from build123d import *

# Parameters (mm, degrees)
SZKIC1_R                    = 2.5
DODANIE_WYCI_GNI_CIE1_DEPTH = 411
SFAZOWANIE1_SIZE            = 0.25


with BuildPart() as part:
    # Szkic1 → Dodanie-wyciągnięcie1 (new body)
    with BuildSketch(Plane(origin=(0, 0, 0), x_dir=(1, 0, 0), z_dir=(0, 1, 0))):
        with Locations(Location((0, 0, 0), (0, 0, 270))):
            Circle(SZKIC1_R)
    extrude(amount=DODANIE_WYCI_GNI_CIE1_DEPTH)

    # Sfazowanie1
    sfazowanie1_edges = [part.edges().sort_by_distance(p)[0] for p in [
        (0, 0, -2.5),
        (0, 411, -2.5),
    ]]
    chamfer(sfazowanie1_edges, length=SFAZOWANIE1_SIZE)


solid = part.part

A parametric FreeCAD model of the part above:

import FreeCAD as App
import Part
import Sketcher
Q = App.Units.Quantity


def edges_at(feature, points):
    """Names of the edges that pass closest to the given points."""
    edges = feature.Shape.Edges
    near = lambda p: min(range(len(edges)), key=lambda i: edges[i].distToShape(Part.Vertex(*p))[0])
    return sorted({f"Edge{near(p) + 1}" for p in points})

doc = App.newDocument("Part")
body = doc.addObject("PartDesign::Body", "Body")

# Sketch on XZ plane
sketch1 = doc.addObject("Sketcher::SketchObject", "Sketch")
body.addObject(sketch1)
sketch1.AttachmentSupport = (doc.XZ_Plane, [""])
sketch1.MapMode = "FlatFace"
sketch1.addGeometry(Part.Circle(App.Vector(0, 0, 0), App.Vector(0, 0, 1), 2.5), False)
sketch1.addConstraint([
    Sketcher.Constraint("Coincident", 0, 3, -1, 1),
    Sketcher.Constraint("Diameter", 0, Q("5 mm")),
])
pad1 = doc.addObject("PartDesign::Pad", "Pad")
body.addObject(pad1)
pad1.Profile = sketch1
pad1.Length = 411
pad1.Reversed = True
doc.recompute()

chamfer = doc.addObject("PartDesign::Chamfer", "Chamfer")
body.addObject(chamfer)
chamfer.Base = (pad1, edges_at(pad1, [(0, 0, -2.5), (0, 411, -2.5)]))
chamfer.Size = 0.25

doc.recompute()
